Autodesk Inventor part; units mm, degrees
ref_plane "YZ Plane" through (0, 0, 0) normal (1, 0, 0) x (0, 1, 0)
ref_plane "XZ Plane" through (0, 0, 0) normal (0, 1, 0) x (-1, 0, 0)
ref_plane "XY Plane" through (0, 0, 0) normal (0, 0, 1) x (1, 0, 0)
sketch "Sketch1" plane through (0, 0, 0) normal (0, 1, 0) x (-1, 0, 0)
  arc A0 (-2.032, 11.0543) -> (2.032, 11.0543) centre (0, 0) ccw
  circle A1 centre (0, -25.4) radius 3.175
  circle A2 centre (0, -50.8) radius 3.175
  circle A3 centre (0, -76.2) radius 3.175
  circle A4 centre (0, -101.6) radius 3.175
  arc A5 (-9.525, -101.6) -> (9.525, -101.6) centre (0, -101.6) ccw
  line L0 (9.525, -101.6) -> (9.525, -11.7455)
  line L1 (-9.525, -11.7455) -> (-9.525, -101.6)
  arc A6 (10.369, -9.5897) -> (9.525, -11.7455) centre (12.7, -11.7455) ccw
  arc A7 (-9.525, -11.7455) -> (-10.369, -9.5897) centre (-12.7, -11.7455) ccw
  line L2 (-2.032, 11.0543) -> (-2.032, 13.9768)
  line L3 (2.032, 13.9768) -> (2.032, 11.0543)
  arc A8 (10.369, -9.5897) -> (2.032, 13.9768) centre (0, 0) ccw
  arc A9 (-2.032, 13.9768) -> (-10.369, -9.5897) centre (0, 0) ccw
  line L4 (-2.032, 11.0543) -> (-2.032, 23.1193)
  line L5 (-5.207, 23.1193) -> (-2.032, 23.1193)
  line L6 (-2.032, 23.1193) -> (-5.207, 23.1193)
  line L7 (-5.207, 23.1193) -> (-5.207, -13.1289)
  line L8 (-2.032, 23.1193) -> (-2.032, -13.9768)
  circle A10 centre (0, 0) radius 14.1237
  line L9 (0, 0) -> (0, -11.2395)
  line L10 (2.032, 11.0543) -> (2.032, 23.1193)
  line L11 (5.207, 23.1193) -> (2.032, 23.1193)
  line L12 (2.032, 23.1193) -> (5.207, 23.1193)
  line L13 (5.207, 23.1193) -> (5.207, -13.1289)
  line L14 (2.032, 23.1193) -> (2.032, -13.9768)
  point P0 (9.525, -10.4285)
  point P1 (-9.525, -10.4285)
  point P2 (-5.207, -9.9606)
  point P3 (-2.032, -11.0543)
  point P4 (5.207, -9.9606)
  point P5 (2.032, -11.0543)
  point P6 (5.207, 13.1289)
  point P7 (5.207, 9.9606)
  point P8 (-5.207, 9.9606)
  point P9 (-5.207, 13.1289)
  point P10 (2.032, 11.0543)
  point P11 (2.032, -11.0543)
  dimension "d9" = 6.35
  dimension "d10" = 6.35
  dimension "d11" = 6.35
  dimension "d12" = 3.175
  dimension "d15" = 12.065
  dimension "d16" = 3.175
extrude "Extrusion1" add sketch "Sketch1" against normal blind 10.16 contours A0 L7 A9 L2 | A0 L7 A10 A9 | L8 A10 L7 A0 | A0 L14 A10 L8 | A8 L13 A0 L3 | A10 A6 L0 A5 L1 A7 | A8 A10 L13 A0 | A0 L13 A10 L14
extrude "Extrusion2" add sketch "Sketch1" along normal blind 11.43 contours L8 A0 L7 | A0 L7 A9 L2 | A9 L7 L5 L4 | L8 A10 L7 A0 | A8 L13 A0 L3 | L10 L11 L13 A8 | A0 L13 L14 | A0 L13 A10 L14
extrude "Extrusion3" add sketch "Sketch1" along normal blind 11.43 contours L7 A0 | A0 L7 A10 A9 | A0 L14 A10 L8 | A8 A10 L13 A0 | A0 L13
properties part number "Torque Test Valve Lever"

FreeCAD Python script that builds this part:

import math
import FreeCAD as App
import Part
import Sketcher
from FreeCAD import Vector
Q = App.Units.Quantity

doc = App.newDocument("Part")
body = doc.addObject("PartDesign::Body", "Body")

# Sketch on XZ plane
sketch1 = body.newObject("Sketcher::SketchObject", "Sketch")
sketch1.AttachmentSupport = (doc.getObject("XZ_Plane"), [""])
sketch1.MapMode = "FlatFace"
sketch1.addGeometry([
    Part.LineSegment(Vector(2, 11.1, 0), Vector(2, 14, 0)),  # 0
    Part.ArcOfCircle(Part.Circle(Vector(0, 0, 0), Vector(0, 0, 1), 14.1), math.radians(-43), math.radians(82)),  # 1
    Part.ArcOfCircle(Part.Circle(Vector(12.7, -11.7, 0), Vector(0, 0, 1), 3.2), math.radians(137), math.radians(180)),  # 2
    Part.LineSegment(Vector(9.5, -11.7, 0), Vector(9.5, -101.6, 0)),  # 3
    Part.ArcOfCircle(Part.Circle(Vector(0, -101.6, 0), Vector(0, 0, 1), 9.5), math.radians(180), math.radians(360)),  # 4
    Part.LineSegment(Vector(-9.5, -101.6, 0), Vector(-9.5, -11.7, 0)),  # 5
    Part.ArcOfCircle(Part.Circle(Vector(-12.7, -11.7, 0), Vector(0, 0, 1), 3.2), math.radians(0), math.radians(43)),  # 6
    Part.ArcOfCircle(Part.Circle(Vector(0, 0, 0), Vector(0, 0, 1), 14.1), math.radians(98), math.radians(223)),  # 7
    Part.LineSegment(Vector(-2, 14, 0), Vector(-2, 11.1, 0)),  # 8
    Part.ArcOfCircle(Part.Circle(Vector(0, 0, 0), Vector(0, 0, 1), 11.2), math.radians(100), math.radians(440)),  # 9
    Part.Circle(Vector(0, -25.4, 0), Vector(0, 0, 1), 3.2),  # 10
    Part.Circle(Vector(0, -50.8, 0), Vector(0, 0, 1), 3.2),  # 11
    Part.Circle(Vector(0, -101.6, 0), Vector(0, 0, 1), 3.2),  # 12
    Part.Circle(Vector(0, -76.2, 0), Vector(0, 0, 1), 3.2),  # 13
], False)
sketch1.addConstraint([
    Sketcher.Constraint("Coincident", 0, 2, 1, 2),
    Sketcher.Constraint("Tangent", 1, 1, 2, 1),
    Sketcher.Constraint("Tangent", 2, 2, 3, 1),
    Sketcher.Constraint("Tangent", 3, 2, 4, 2),
    Sketcher.Constraint("Tangent", 4, 1, 5, 1),
    Sketcher.Constraint("Tangent", 5, 2, 6, 1),
    Sketcher.Constraint("Tangent", 6, 2, 7, 2),
    Sketcher.Constraint("Coincident", 7, 1, 8, 1),
    Sketcher.Constraint("Coincident", 8, 2, 9, 1),
    Sketcher.Constraint("Coincident", 9, 2, 0, 1),
    Sketcher.Constraint("Vertical", 0),
    Sketcher.Constraint("Vertical", 3),
    Sketcher.Constraint("Vertical", 5),
    Sketcher.Constraint("Vertical", 8),
    Sketcher.Constraint("Coincident", 1, 3, -1, 1),
    Sketcher.Constraint("Coincident", 7, 3, -1, 1),
    Sketcher.Constraint("Coincident", 9, 3, -1, 1),
    Sketcher.Constraint("Coincident", 12, 3, 4, 3),
    Sketcher.Constraint("Equal", 2, 6),
    Sketcher.Constraint("Equal", 1, 7),
    Sketcher.Constraint("Equal", 6, 10),
    Sketcher.Constraint("Equal", 10, 11),
    Sketcher.Constraint("Equal", 11, 12),
    Sketcher.Constraint("Equal", 12, 13),
    Sketcher.Constraint("PointOnObject", 4, 3, -2),
    Sketcher.Constraint("PointOnObject", 10, 3, -2),
    Sketcher.Constraint("PointOnObject", 11, 3, -2),
    Sketcher.Constraint("PointOnObject", 13, 3, -2),
    Sketcher.Constraint("Horizontal", 0, 2, 7, 1),
    Sketcher.Constraint("Diameter", 10, Q("0.25 in")),
    Sketcher.Constraint("DistanceY", 4, 3, -1, 1, Q("4 in")),
    Sketcher.Constraint("DistanceY", 10, 3, -1, 1, Q("1 in")),
    Sketcher.Constraint("DistanceY", 11, 3, -1, 1, Q("2 in")),
    Sketcher.Constraint("DistanceY", 13, 3, -1, 1, Q("3 in")),
    Sketcher.Constraint("Radius", 4, Q("0.375 in")),
    Sketcher.Constraint("Radius", 9, Q("0.4425 in")),
    Sketcher.Constraint("DistanceX", -1, 1, 0, 2, Q("0.08 in")),
    Sketcher.Constraint("Radius", 1, Q("14.1237 mm")),
])
pad1 = body.newObject("PartDesign::Pad", "Pad")
pad1.Profile = sketch1
pad1.Length = Q("0.4 in")

# Sketch on XZ plane
sketch2 = body.newObject("Sketcher::SketchObject", "Sketch001")
sketch2.AttachmentSupport = (doc.getObject("XZ_Plane"), [""])
sketch2.MapMode = "FlatFace"
sketch2.addGeometry([
    Part.LineSegment(Vector(2, 23.1, 0), Vector(5.2, 23.1, 0)),  # 0
    Part.LineSegment(Vector(5.2, 23.1, 0), Vector(5.2, -13.1, 0)),  # 1
    Part.ArcOfCircle(Part.Circle(Vector(0, 0, 0), Vector(0, 0, 1), 14.1), math.radians(-81.73), math.radians(-68.37)),  # 2
    Part.LineSegment(Vector(2, -14, 0), Vector(2, 23.1, 0)),  # 3
    Part.LineSegment(Vector(-5.2, 23.1, 0), Vector(-2, 23.1, 0)),  # 4
    Part.LineSegment(Vector(-2, 23.1, 0), Vector(-2, -14, 0)),  # 5
    Part.ArcOfCircle(Part.Circle(Vector(0, 0, 0), Vector(0, 0, 1), 14.1), math.radians(-111.63), math.radians(-98.27)),  # 6
    Part.LineSegment(Vector(-5.2, -13.1, 0), Vector(-5.2, 23.1, 0)),  # 7
], False)
sketch2.addConstraint([
    Sketcher.Constraint("Coincident", 0, 2, 1, 1),
    Sketcher.Constraint("Coincident", 1, 2, 2, 2),
    Sketcher.Constraint("Coincident", 2, 1, 3, 1),
    Sketcher.Constraint("Coincident", 3, 2, 0, 1),
    Sketcher.Constraint("Coincident", 4, 2, 5, 1),
    Sketcher.Constraint("Coincident", 5, 2, 6, 2),
    Sketcher.Constraint("Coincident", 6, 1, 7, 1),
    Sketcher.Constraint("Coincident", 7, 2, 4, 1),
    Sketcher.Constraint("Horizontal", 0),
    Sketcher.Constraint("Vertical", 1),
    Sketcher.Constraint("Vertical", 3),
    Sketcher.Constraint("Horizontal", 4),
    Sketcher.Constraint("Vertical", 5),
    Sketcher.Constraint("Vertical", 7),
    Sketcher.Constraint("Coincident", 2, 3, -1, 1),
    Sketcher.Constraint("Coincident", 6, 3, -1, 1),
    Sketcher.Constraint("Equal", 2, 6),
    Sketcher.Constraint("Symmetric", 3, 2, 4, 2, -2),
    Sketcher.Constraint("Horizontal", 1, 2, 6, 1),
    Sketcher.Constraint("DistanceX", 0, 1, 0, 2, Q("0.125 in")),
    Sketcher.Constraint("DistanceX", -1, 1, 2, 1, Q("0.08 in")),
    Sketcher.Constraint("Radius", 2, Q("14.1237 mm")),
    Sketcher.Constraint("DistanceY", 1, 2, 1, 1, Q("1.4271 in")),
])
pad2 = body.newObject("PartDesign::Pad", "Pad001")
pad2.Profile = sketch2
pad2.Length = Q("0.45 in")
pad2.Reversed = True

# Sketch on XZ plane
sketch3 = body.newObject("Sketcher::SketchObject", "Sketch002")
sketch3.AttachmentSupport = (doc.getObject("XZ_Plane"), [""])
sketch3.MapMode = "FlatFace"
sketch3.addGeometry([
    Part.ArcOfCircle(Part.Circle(Vector(0, 0, 0), Vector(0, 0, 1), 14.1), math.radians(-43), math.radians(68)),  # 0
    Part.ArcOfCircle(Part.Circle(Vector(0, 0, 0), Vector(0, 0, 1), 14.1), math.radians(-68), math.radians(-43)),  # 1
    Part.LineSegment(Vector(5.2, -13.1, 0), Vector(5.2, 13.1, 0)),  # 2
    Part.ArcOfCircle(Part.Circle(Vector(0, 0, 0), Vector(0, 0, 1), 11.2), math.radians(-100), math.radians(-80)),  # 3
    Part.LineSegment(Vector(2, -11.1, 0), Vector(2, -14, 0)),  # 4
    Part.ArcOfCircle(Part.Circle(Vector(0, 0, 0), Vector(0, 0, 1), 14.1), math.radians(-98.27), math.radians(-81.73)),  # 5
    Part.LineSegment(Vector(-2, -14, 0), Vector(-2, -11.1, 0)),  # 6
    Part.LineSegment(Vector(-5.2, 13.1, 0), Vector(-5.2, -13.1, 0)),  # 7
    Part.ArcOfCircle(Part.Circle(Vector(0, 0, 0), Vector(0, 0, 1), 14.1), math.radians(-137), math.radians(-112)),  # 8
    Part.ArcOfCircle(Part.Circle(Vector(0, 0, 0), Vector(0, 0, 1), 14.1), math.radians(112), math.radians(223)),  # 9
], False)
sketch3.addConstraint([
    Sketcher.Constraint("Tangent", 0, 1, 1, 2),
    Sketcher.Constraint("Coincident", 1, 1, 2, 1),
    Sketcher.Constraint("Coincident", 2, 2, 0, 2),
    Sketcher.Constraint("Coincident", 3, 2, 4, 1),
    Sketcher.Constraint("Coincident", 4, 2, 5, 2),
    Sketcher.Constraint("Coincident", 5, 1, 6, 1),
    Sketcher.Constraint("Coincident", 6, 2, 3, 1),
    Sketcher.Constraint("Coincident", 7, 2, 8, 2),
    Sketcher.Constraint("Tangent", 8, 1, 9, 2),
    Sketcher.Constraint("Coincident", 9, 1, 7, 1),
    Sketcher.Constraint("Vertical", 2),
    Sketcher.Constraint("Vertical", 4),
    Sketcher.Constraint("Vertical", 6),
    Sketcher.Constraint("Vertical", 7),
    Sketcher.Constraint("Coincident", 0, 3, -1, 1),
    Sketcher.Constraint("Coincident", 3, 3, -1, 1),
    Sketcher.Constraint("Coincident", 5, 3, -1, 1),
    Sketcher.Constraint("Coincident", 8, 3, -1, 1),
    Sketcher.Constraint("Equal", 0, 1),
    Sketcher.Constraint("Equal", 1, 5),
    Sketcher.Constraint("Equal", 5, 8),
    Sketcher.Constraint("Equal", 8, 9),
    Sketcher.Constraint("Horizontal", 4, 2, 5, 1),
    Sketcher.Constraint("Horizontal", 1, 1, 7, 2),
    Sketcher.Constraint("Horizontal", 0, 1, 8, 1),
    Sketcher.Constraint("DistanceX", 3, 2, 1, 1, Q("0.125 in")),
    Sketcher.Constraint("Radius", 3, Q("0.4425 in")),
    Sketcher.Constraint("DistanceX", -1, 1, 3, 2, Q("0.08 in")),
    Sketcher.Constraint("Radius", 0, Q("14.1237 mm")),
    Sketcher.Constraint("DistanceX", -1, 1, 0, 1, Q("10.369 mm")),
])
pad3 = body.newObject("PartDesign::Pad", "Pad002")
pad3.Profile = sketch3
pad3.Length = Q("0.45 in")
pad3.Reversed = True

doc.recompute()
